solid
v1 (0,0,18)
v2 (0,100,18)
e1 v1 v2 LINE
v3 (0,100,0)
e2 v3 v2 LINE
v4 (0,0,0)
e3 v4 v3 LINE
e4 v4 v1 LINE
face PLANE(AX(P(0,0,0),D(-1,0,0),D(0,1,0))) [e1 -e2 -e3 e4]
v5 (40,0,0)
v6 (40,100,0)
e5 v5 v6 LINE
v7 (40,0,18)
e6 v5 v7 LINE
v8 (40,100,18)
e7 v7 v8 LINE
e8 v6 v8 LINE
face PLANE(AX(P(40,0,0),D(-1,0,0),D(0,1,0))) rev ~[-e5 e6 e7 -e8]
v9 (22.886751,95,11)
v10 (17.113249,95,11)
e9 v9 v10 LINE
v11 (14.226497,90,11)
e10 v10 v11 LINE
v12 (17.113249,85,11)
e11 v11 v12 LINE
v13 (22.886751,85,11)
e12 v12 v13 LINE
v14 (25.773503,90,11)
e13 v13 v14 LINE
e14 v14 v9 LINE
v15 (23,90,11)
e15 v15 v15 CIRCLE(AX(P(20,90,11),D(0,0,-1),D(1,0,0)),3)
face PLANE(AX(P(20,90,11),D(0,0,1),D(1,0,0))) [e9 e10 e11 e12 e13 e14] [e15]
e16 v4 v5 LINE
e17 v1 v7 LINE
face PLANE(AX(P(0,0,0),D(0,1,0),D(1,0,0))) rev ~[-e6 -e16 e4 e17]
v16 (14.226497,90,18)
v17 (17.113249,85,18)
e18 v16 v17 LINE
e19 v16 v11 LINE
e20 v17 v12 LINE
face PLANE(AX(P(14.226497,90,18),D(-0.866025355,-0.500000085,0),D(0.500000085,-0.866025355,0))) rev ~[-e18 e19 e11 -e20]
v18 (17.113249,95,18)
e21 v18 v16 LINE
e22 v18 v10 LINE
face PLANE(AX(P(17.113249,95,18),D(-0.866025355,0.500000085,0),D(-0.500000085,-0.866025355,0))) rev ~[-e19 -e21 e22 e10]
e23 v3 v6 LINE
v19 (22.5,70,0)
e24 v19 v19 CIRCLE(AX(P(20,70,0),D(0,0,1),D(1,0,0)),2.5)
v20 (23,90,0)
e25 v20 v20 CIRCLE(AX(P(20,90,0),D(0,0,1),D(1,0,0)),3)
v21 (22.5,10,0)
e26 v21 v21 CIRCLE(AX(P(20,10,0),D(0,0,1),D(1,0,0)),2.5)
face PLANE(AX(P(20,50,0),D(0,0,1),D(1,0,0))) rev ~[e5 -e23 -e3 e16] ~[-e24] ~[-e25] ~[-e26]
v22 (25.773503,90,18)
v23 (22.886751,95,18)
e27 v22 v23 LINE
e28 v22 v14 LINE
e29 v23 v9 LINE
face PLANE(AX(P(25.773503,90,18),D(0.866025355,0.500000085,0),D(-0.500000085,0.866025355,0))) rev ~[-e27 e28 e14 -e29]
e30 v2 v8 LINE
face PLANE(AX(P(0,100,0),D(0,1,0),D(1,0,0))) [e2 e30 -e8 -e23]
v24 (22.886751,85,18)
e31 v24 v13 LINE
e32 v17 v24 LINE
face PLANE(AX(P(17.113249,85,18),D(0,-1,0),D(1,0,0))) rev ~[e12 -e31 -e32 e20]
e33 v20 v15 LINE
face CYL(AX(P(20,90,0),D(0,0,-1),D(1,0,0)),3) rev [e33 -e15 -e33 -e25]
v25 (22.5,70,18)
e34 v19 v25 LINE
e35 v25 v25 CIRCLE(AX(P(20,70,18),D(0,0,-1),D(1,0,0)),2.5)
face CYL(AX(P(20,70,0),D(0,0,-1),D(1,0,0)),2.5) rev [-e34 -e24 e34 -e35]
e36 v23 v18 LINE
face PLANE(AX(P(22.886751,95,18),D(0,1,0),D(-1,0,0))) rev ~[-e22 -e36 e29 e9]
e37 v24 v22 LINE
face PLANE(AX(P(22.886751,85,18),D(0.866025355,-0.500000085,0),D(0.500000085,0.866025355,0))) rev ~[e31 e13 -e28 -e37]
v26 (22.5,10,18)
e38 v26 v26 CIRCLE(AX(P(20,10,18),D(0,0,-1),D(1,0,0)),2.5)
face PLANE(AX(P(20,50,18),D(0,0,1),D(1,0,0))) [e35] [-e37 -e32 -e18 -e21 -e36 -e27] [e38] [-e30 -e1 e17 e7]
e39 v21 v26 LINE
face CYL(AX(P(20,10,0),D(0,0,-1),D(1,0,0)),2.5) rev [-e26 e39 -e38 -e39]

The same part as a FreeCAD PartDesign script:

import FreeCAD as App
import Part
import Sketcher
from FreeCAD import Vector
Q = App.Units.Quantity


def add_polygon(sketch, points):
    """Adds a closed chain of lines whose ends are joined by coincident constraints."""
    first, n = sketch.GeometryCount, len(points)
    for a, b in zip(points, points[1:] + points[:1]):
        sketch.addGeometry(Part.LineSegment(App.Vector(*a, 0), App.Vector(*b, 0)), False)
    for i in range(n):
        sketch.addConstraint(Sketcher.Constraint("Coincident", first + i, 2, first + (i + 1) % n, 1))

doc = App.newDocument("Part")
body = doc.addObject("PartDesign::Body", "Body")

sketch1 = body.newObject("Sketcher::SketchObject", "Sketch")
sketch1.AttachmentSupport = (doc.getObject("XY_Plane"), [""])
sketch1.MapMode = "FlatFace"
add_polygon(sketch1, [(-20, 50), (-20, -50), (20, -50), (20, 50)])
sketch1.addConstraint([
    Sketcher.Constraint("Vertical", 0),
    Sketcher.Constraint("Horizontal", 1),
    Sketcher.Constraint("Vertical", 2),
    Sketcher.Constraint("Horizontal", 3),
    Sketcher.Constraint("Symmetric", 0, 2, 2, 2, -1, 1),
    Sketcher.Constraint("DistanceX", 1, 1, 1, 2, 40.0),
    Sketcher.Constraint("DistanceY", 0, 2, 0, 1, 100.0),
])
pad1 = body.newObject("PartDesign::Pad", "Pad")
pad1.Profile = sketch1
pad1.Length = 18

sketch2 = body.newObject("Sketcher::SketchObject", "Sketch001")
sketch2.AttachmentSupport = (doc.getObject("XY_Plane"), [""])
sketch2.MapMode = "FlatFace"
sketch2.addGeometry([
    Part.Circle(Vector(0, 40, 0), Vector(0, 0, 1), 3),
    Part.Circle(Vector(0, 20, 0), Vector(0, 0, 1), 2.5),
    Part.Circle(Vector(0, -40, 0), Vector(0, 0, 1), 2.5),
], False)
sketch2.addConstraint([
    Sketcher.Constraint("Equal", 1, 2),
    Sketcher.Constraint("Symmetric", 0, 3, 2, 3, -1, 1),
    Sketcher.Constraint("PointOnObject", 0, 3, -2),
    Sketcher.Constraint("PointOnObject", 1, 3, -2),
    Sketcher.Constraint("Diameter", 0, 6.0),
    Sketcher.Constraint("Diameter", 1, 5.0),
    Sketcher.Constraint("DistanceY", -1, 1, 0, 3, 40.0),
    Sketcher.Constraint("DistanceY", -1, 1, 1, 3, 20.0),
])
pocket1 = body.newObject("PartDesign::Pocket", "Pocket")
pocket1.Profile = sketch2
pocket1.Type = "ThroughAll"
pocket1.Midplane = True

sketch3 = body.newObject("Sketcher::SketchObject", "Sketch002")
sketch3.AttachmentSupport = (doc.getObject("XY_Plane"), [""])
sketch3.MapMode = "FlatFace"
sketch3.AttachmentOffset = App.Placement(Vector(0, 0, 18), App.Rotation())
add_polygon(sketch3, [(6, 40), (3, 45), (-3, 45), (-6, 40), (-3, 35), (3, 35)])
sketch3.addConstraint([
    Sketcher.Constraint("Horizontal", 1),
    Sketcher.Constraint("Horizontal", 4),
    Sketcher.Constraint("Symmetric", 2, 2, 5, 2, -2),
    Sketcher.Constraint("Parallel", 0, 3),
    Sketcher.Constraint("Parallel", 2, 5),
    Sketcher.Constraint("Vertical", 1, 2, 3, 2),
    Sketcher.Constraint("Vertical", 0, 2, 4, 2),
    Sketcher.Constraint("Angle", 0, Q("120.000006 deg")),
    Sketcher.Constraint("DistanceY", -1, 1, 0, 2, 45.0),
    Sketcher.Constraint("DistanceY", -1, 1, 2, 2, 40.0),
    Sketcher.Constraint("DistanceX", 1, 2, 1, 1, 5.773502),
])
pocket2 = body.newObject("PartDesign::Pocket", "Pocket001")
pocket2.Profile = sketch3
pocket2.Length = 7
body2 = doc.addObject("PartDesign::Body", "Body001")
doc.recompute()

body.Placement = App.Placement(Vector(20, 50, 0), App.Rotation(Vector(0, 0, 1), 0))
boolean = body2.newObject("PartDesign::Boolean", "Boolean")
boolean.Type = "Fuse"
boolean.addObjects([body])

doc.recompute()
